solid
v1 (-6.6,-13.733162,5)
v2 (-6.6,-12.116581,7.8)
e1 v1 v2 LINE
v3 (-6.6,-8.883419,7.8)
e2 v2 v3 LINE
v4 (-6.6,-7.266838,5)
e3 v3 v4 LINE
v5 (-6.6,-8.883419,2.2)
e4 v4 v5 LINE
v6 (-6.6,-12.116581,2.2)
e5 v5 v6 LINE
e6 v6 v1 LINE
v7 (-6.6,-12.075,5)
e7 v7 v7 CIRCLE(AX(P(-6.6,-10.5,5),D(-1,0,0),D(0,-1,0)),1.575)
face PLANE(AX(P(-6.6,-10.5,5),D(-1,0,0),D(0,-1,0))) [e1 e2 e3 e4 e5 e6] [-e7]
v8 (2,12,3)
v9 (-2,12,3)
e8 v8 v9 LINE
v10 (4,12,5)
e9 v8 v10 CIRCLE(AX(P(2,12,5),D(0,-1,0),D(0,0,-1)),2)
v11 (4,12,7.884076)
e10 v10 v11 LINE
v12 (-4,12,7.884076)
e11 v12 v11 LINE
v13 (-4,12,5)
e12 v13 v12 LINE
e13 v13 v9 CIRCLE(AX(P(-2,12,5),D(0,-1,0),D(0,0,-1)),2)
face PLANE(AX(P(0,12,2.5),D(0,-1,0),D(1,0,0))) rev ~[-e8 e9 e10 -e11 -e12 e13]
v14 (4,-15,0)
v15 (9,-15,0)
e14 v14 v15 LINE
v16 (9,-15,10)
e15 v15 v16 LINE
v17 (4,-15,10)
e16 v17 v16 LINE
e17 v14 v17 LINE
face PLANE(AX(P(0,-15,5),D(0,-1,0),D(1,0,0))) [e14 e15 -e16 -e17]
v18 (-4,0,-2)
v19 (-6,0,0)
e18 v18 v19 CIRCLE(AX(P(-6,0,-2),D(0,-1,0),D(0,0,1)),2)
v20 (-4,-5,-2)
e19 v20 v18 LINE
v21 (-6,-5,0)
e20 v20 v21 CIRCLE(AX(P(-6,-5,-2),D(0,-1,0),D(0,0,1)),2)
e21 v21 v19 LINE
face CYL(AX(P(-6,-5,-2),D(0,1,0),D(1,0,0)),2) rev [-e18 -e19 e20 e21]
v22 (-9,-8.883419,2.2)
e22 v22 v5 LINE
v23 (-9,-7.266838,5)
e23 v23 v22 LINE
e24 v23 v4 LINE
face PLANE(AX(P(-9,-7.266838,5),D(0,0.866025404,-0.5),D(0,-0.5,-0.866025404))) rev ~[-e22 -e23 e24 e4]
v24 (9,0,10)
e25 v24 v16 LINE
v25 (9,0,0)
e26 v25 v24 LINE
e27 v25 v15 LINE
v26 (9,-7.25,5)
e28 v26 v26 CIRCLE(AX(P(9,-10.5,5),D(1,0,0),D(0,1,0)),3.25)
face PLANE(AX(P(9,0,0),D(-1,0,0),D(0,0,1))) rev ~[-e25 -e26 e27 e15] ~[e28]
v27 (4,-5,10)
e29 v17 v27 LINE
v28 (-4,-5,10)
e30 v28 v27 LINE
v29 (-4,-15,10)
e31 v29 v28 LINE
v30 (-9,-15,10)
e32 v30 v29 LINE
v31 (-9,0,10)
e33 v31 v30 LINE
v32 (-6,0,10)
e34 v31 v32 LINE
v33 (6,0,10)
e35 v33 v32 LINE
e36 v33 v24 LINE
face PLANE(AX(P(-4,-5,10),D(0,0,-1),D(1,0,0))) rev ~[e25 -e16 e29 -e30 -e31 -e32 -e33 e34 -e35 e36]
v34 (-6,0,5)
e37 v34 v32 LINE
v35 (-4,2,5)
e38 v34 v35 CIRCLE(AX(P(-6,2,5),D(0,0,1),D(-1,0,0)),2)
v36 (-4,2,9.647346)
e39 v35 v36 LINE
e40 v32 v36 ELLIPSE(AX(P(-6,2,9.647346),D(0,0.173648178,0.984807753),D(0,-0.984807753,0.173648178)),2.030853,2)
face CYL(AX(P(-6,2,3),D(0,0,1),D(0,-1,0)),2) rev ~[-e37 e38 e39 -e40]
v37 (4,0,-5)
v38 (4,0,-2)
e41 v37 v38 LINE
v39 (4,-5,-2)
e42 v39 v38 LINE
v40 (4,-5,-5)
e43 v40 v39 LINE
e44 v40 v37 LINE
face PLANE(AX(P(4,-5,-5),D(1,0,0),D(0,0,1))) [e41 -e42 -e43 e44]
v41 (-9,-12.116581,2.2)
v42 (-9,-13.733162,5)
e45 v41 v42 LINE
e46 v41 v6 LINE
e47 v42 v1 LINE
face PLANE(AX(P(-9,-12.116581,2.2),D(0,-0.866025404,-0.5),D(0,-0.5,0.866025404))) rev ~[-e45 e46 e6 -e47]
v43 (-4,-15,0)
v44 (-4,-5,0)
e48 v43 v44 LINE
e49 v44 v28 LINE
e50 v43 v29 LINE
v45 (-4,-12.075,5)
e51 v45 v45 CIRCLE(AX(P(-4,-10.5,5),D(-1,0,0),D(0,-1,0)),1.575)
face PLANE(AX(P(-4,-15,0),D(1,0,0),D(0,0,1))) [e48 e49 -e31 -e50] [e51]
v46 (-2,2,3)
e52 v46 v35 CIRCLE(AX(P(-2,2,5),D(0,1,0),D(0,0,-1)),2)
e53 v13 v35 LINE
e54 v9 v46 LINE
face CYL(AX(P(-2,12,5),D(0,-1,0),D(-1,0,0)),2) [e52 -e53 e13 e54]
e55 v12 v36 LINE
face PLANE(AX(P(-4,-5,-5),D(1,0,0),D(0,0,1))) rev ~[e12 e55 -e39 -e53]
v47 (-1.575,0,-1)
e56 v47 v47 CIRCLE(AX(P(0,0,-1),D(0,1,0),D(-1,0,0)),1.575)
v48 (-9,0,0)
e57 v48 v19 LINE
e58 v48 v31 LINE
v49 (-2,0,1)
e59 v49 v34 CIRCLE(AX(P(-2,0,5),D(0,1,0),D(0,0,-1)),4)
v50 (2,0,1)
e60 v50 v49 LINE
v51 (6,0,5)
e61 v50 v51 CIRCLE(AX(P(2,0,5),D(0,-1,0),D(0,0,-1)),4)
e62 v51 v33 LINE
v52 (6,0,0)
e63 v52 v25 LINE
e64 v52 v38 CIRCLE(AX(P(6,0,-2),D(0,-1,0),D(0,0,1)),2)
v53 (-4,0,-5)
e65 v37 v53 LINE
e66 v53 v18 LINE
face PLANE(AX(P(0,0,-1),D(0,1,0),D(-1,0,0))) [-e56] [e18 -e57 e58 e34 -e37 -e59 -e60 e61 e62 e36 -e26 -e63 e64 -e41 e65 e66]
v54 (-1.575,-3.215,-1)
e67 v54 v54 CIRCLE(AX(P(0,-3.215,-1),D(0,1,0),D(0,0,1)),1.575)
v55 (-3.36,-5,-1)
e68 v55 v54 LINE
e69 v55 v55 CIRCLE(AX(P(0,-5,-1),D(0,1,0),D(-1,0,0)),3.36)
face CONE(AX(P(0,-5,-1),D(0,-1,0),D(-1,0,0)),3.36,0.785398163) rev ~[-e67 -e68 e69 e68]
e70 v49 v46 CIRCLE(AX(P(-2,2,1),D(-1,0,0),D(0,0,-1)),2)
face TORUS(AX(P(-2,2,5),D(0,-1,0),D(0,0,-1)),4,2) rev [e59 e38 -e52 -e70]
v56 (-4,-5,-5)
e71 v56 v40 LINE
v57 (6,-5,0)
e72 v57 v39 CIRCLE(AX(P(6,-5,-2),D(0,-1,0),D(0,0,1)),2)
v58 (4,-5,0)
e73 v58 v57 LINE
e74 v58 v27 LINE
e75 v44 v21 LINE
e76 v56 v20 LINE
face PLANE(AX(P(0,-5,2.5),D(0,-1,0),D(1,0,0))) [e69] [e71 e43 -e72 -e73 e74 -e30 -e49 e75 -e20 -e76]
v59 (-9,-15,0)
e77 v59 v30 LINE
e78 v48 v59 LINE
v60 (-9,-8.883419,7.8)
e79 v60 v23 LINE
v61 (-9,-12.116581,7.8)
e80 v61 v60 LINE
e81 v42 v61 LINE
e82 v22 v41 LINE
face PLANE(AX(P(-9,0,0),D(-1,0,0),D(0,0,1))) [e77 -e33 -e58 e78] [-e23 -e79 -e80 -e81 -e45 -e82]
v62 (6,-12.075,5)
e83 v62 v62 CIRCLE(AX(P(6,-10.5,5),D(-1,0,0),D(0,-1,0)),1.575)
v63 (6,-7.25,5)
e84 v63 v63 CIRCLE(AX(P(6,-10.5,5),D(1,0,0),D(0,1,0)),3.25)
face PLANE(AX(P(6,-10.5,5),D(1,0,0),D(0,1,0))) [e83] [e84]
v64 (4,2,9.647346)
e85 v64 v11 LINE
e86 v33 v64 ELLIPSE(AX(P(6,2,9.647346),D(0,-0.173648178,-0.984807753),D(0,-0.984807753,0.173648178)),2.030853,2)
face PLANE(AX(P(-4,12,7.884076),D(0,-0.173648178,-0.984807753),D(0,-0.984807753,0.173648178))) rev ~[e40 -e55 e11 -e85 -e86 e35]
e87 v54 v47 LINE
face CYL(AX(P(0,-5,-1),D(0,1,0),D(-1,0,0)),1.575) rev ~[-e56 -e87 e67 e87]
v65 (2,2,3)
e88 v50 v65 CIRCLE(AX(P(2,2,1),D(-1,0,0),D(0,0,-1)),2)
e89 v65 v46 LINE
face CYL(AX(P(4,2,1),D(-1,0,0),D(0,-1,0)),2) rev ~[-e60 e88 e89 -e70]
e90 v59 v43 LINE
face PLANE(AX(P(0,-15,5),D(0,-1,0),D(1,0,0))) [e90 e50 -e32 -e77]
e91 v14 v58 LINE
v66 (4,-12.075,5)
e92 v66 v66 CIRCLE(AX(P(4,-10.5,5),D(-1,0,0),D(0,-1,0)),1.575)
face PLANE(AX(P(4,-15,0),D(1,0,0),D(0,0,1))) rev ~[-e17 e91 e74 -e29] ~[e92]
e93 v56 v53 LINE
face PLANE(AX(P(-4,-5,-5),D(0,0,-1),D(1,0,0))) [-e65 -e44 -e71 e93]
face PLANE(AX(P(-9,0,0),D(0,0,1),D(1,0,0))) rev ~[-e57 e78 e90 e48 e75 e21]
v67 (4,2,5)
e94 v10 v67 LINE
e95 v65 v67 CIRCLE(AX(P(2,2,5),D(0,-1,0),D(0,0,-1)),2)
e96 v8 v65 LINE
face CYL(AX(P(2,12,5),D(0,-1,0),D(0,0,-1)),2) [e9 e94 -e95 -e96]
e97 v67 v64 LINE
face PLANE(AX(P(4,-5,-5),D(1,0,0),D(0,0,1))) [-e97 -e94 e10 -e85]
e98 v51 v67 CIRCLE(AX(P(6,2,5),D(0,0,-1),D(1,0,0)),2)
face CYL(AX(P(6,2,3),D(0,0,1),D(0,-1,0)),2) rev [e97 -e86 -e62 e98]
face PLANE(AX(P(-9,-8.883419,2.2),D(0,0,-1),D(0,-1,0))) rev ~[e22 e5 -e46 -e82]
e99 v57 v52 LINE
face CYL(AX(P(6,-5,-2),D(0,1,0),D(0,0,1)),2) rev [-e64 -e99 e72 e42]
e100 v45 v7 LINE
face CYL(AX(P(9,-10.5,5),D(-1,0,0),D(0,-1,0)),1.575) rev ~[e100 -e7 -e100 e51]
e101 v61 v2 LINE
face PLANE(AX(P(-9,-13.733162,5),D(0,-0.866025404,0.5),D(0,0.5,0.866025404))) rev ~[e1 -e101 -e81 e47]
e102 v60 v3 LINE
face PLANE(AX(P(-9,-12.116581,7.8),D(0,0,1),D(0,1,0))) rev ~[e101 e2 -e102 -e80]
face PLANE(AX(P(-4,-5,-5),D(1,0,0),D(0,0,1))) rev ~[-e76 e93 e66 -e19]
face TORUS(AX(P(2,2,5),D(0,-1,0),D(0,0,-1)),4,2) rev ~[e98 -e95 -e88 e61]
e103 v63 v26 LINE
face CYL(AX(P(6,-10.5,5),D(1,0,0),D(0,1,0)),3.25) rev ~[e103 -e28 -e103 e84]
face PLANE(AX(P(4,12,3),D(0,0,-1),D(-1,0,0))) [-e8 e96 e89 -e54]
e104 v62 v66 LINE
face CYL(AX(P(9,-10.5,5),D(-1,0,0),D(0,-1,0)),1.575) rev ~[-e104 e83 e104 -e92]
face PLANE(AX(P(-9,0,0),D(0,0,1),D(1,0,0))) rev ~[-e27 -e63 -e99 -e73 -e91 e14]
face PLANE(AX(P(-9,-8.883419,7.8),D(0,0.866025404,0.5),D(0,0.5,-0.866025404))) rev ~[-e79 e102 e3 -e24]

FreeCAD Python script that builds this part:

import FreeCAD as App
import Part
import Sketcher

V = App.Vector
Q = App.Units.Quantity


def edges_at(feature, points):
    """Names of the edges that pass closest to the given points."""
    edges = feature.Shape.Edges
    near = lambda p: min(range(len(edges)), key=lambda i: edges[i].distToShape(Part.Vertex(*p))[0])
    return sorted({f"Edge{near(p) + 1}" for p in points})

doc = App.newDocument("Part")
body = doc.addObject("PartDesign::Body", "Body")

sketch1 = body.newObject("Sketcher::SketchObject", "Sketch")
sketch1.AttachmentSupport = (doc.getObject("XZ_Plane"), [""])
sketch1.MapMode = "FlatFace"
sketch1.addGeometry([
    Part.LineSegment(V(-9, 10, 0), V(-9, 0, 0)),
    Part.LineSegment(V(-9, 0, 0), V(9, 0, 0)),
    Part.LineSegment(V(9, 0, 0), V(9, 10, 0)),
    Part.LineSegment(V(9, 10, 0), V(-9, 10, 0)),
], False)
sketch1.addConstraint([
    Sketcher.Constraint("Coincident", 0, 2, 1, 1),
    Sketcher.Constraint("Coincident", 1, 2, 2, 1),
    Sketcher.Constraint("Coincident", 2, 2, 3, 1),
    Sketcher.Constraint("Coincident", 3, 2, 0, 1),
    Sketcher.Constraint("Vertical", 0),
    Sketcher.Constraint("Horizontal", 1),
    Sketcher.Constraint("Vertical", 2),
    Sketcher.Constraint("Horizontal", 3),
    Sketcher.Constraint("Symmetric", 0, 2, 1, 2, -1, 1),
    Sketcher.Constraint("DistanceX", 1, 1, 1, 2, 18.0),
    Sketcher.Constraint("DistanceY", 0, 2, 0, 1, 10.0),
])
pad1 = body.newObject("PartDesign::Pad", "Pad")
pad1.Profile = sketch1
pad1.Length = 15

sketch2 = body.newObject("Sketcher::SketchObject", "Sketch001")
sketch2.AttachmentSupport = (doc.getObject("XZ_Plane"), [""])
sketch2.MapMode = "FlatFace"
sketch2.AttachmentOffset = App.Placement(V(0, 0, 15), App.Rotation())
sketch2.addGeometry([
    Part.LineSegment(V(-4, 10, 0), V(-4, 0, 0)),
    Part.LineSegment(V(-4, 0, 0), V(4, 0, 0)),
    Part.LineSegment(V(4, 0, 0), V(4, 10, 0)),
    Part.LineSegment(V(4, 10, 0), V(-4, 10, 0)),
], False)
sketch2.addConstraint([
    Sketcher.Constraint("Coincident", 0, 2, 1, 1),
    Sketcher.Constraint("Coincident", 1, 2, 2, 1),
    Sketcher.Constraint("Coincident", 2, 2, 3, 1),
    Sketcher.Constraint("Coincident", 3, 2, 0, 1),
    Sketcher.Constraint("Vertical", 0),
    Sketcher.Constraint("Horizontal", 1),
    Sketcher.Constraint("Vertical", 2),
    Sketcher.Constraint("Horizontal", 3),
    Sketcher.Constraint("Symmetric", 0, 2, 1, 2, -1, 1),
    Sketcher.Constraint("DistanceX", 1, 1, 1, 2, 8.0),
    Sketcher.Constraint("DistanceY", 0, 2, 0, 1, 10.0),
])
pocket1 = body.newObject("PartDesign::Pocket", "Pocket")
pocket1.Profile = sketch2
pocket1.Length = 10

sketch3 = body.newObject("Sketcher::SketchObject", "Sketch002")
sketch3.AttachmentSupport = (doc.getObject("YZ_Plane"), [""])
sketch3.MapMode = "FlatFace"
sketch3.AttachmentOffset = App.Placement(V(0, 0, 9), App.Rotation())
sketch3.addGeometry(Part.Circle(V(-10.5, 5, 0), V(0, 0, 1), 1.6), False)
sketch3.addConstraint([
    Sketcher.Constraint("Diameter", 0, 3.15),
    Sketcher.Constraint("DistanceY", -1, 1, 0, 3, 5.0),
    Sketcher.Constraint("DistanceX", 0, 3, -1, 1, 10.5),
])
doc.recompute()
hole = body.newObject("PartDesign::Hole", "Hole")
hole.Profile = sketch3
hole.ThreadType = "None"
hole.Diameter = 3.15
hole.DepthType = "ThroughAll"
hole.HoleCutType = "Counterbore"
hole.HoleCutDiameter = 6.5
hole.HoleCutDepth = 3

sketch4 = body.newObject("Sketcher::SketchObject", "Sketch003")
sketch4.AttachmentSupport = (doc.getObject("YZ_Plane"), [""])
sketch4.MapMode = "FlatFace"
sketch4.AttachmentOffset = App.Placement(V(0, 0, -9), App.Rotation())
sketch4.addGeometry([
    Part.LineSegment(V(-12.1, 2.2, 0), V(-13.7, 5, 0)),
    Part.LineSegment(V(-13.7, 5, 0), V(-12.1, 7.8, 0)),
    Part.LineSegment(V(-12.1, 7.8, 0), V(-8.9, 7.8, 0)),
    Part.LineSegment(V(-8.9, 7.8, 0), V(-7.3, 5, 0)),
    Part.LineSegment(V(-7.3, 5, 0), V(-8.9, 2.2, 0)),
    Part.LineSegment(V(-8.9, 2.2, 0), V(-12.1, 2.2, 0)),
], False)
sketch4.addConstraint([
    Sketcher.Constraint("Coincident", 0, 2, 1, 1),
    Sketcher.Constraint("Coincident", 1, 2, 2, 1),
    Sketcher.Constraint("Coincident", 2, 2, 3, 1),
    Sketcher.Constraint("Coincident", 3, 2, 4, 1),
    Sketcher.Constraint("Coincident", 4, 2, 5, 1),
    Sketcher.Constraint("Coincident", 5, 2, 0, 1),
    Sketcher.Constraint("Horizontal", 2),
    Sketcher.Constraint("Horizontal", 5),
    Sketcher.Constraint("Parallel", 0, 3),
    Sketcher.Constraint("Parallel", 1, 4),
    Sketcher.Constraint("Horizontal", 0, 2, 3, 2),
    Sketcher.Constraint("Vertical", 2, 2, 4, 2),
    Sketcher.Constraint("Vertical", 1, 2, 5, 2),
    Sketcher.Constraint("Angle", 0, Q("120 deg")),
    Sketcher.Constraint("DistanceY", -1, 1, 0, 2, 5.0),
    Sketcher.Constraint("DistanceY", -1, 1, 1, 2, 7.8),
    Sketcher.Constraint("DistanceX", 2, 1, 2, 2, 3.233162),
    Sketcher.Constraint("DistanceX", 0, 2, -1, 1, 13.733162),
])
pocket2 = body.newObject("PartDesign::Pocket", "Pocket001")
pocket2.Profile = sketch4
pocket2.Length = 2.4
pocket2.Reversed = True

sketch5 = body.newObject("Sketcher::SketchObject", "Sketch004")
sketch5.AttachmentSupport = (doc.getObject("XZ_Plane"), [""])
sketch5.MapMode = "FlatFace"
sketch5.AttachmentOffset = App.Placement(V(0, 0, 5), App.Rotation())
sketch5.addGeometry([
    Part.LineSegment(V(-4, 10, 0), V(-4, -5, 0)),
    Part.LineSegment(V(-4, -5, 0), V(4, -5, 0)),
    Part.LineSegment(V(4, -5, 0), V(4, 10, 0)),
    Part.LineSegment(V(4, 10, 0), V(-4, 10, 0)),
], False)
sketch5.addConstraint([
    Sketcher.Constraint("Coincident", 0, 2, 1, 1),
    Sketcher.Constraint("Coincident", 1, 2, 2, 1),
    Sketcher.Constraint("Coincident", 2, 2, 3, 1),
    Sketcher.Constraint("Coincident", 3, 2, 0, 1),
    Sketcher.Constraint("Vertical", 0),
    Sketcher.Constraint("Horizontal", 1),
    Sketcher.Constraint("Vertical", 2),
    Sketcher.Constraint("Horizontal", 3),
    Sketcher.Constraint("DistanceX", 1, 1, 1, 2, 8.0),
    Sketcher.Constraint("DistanceY", 0, 2, 0, 1, 15.0),
    Sketcher.Constraint("DistanceX", 0, 2, -1, 1, 4.0),
    Sketcher.Constraint("DistanceY", 0, 2, -1, 1, 5.0),
])
pad2 = body.newObject("PartDesign::Pad", "Pad001")
pad2.Profile = sketch5
pad2.Length = 17
pad2.Reversed = True

sketch6 = body.newObject("Sketcher::SketchObject", "Sketch005")
sketch6.AttachmentSupport = (doc.getObject("XZ_Plane"), [""])
sketch6.MapMode = "FlatFace"
sketch6.AttachmentOffset = App.Placement(V(0, 0, -12), App.Rotation())
sketch6.addGeometry([
    Part.LineSegment(V(4, 3, 0), V(4, -5, 0)),
    Part.LineSegment(V(4, -5, 0), V(-4, -5, 0)),
    Part.LineSegment(V(-4, -5, 0), V(-4, 3, 0)),
    Part.LineSegment(V(-4, 3, 0), V(4, 3, 0)),
], False)
sketch6.addConstraint([
    Sketcher.Constraint("Coincident", 0, 2, 1, 1),
    Sketcher.Constraint("Coincident", 1, 2, 2, 1),
    Sketcher.Constraint("Coincident", 2, 2, 3, 1),
    Sketcher.Constraint("Coincident", 3, 2, 0, 1),
    Sketcher.Constraint("Vertical", 0),
    Sketcher.Constraint("Horizontal", 1),
    Sketcher.Constraint("Vertical", 2),
    Sketcher.Constraint("Horizontal", 3),
    Sketcher.Constraint("Equal", 3, 0),
    Sketcher.Constraint("DistanceX", 1, 2, 1, 1, 8.0),
    Sketcher.Constraint("DistanceX", -1, 1, 0, 2, 4.0),
    Sketcher.Constraint("DistanceY", 0, 2, -1, 1, 5.0),
])
pocket3 = body.newObject("PartDesign::Pocket", "Pocket002")
pocket3.Profile = sketch6
pocket3.Length = 12
pocket3.Reversed = True

sketch7 = body.newObject("Sketcher::SketchObject", "Sketch006")
sketch7.AttachmentSupport = (doc.getObject("XZ_Plane"), [""])
sketch7.MapMode = "FlatFace"
sketch7.AttachmentOffset = App.Placement(V(0, 0, 5), App.Rotation())
sketch7.addGeometry(Part.Circle(V(0, -1, 0), V(0, 0, 1), 1.6), False)
sketch7.addConstraint([
    Sketcher.Constraint("PointOnObject", 0, 3, -2),
    Sketcher.Constraint("Diameter", 0, 3.15),
    Sketcher.Constraint("DistanceY", 0, 3, -1, 1, 1.0),
])
doc.recompute()
hole2 = body.newObject("PartDesign::Hole", "Hole001")
hole2.Profile = sketch7
hole2.ThreadType = "None"
hole2.Diameter = 3.15
hole2.DepthType = "ThroughAll"
hole2.HoleCutType = "Countersink"
hole2.HoleCutDiameter = 6.72
hole2.HoleCutCountersinkAngle = 90

sketch8 = body.newObject("Sketcher::SketchObject", "Sketch007")
sketch8.AttachmentSupport = (doc.getObject("YZ_Plane"), [""])
sketch8.MapMode = "FlatFace"
sketch8.AttachmentOffset = App.Placement(V(0, 0, -4), App.Rotation())
sketch8.addGeometry([
    Part.LineSegment(V(12, 7.9, 0), V(0, 10, 0)),
    Part.LineSegment(V(0, 10, 0), V(12, 10, 0)),
    Part.LineSegment(V(12, 10, 0), V(12, 7.9, 0)),
], False)
sketch8.addConstraint([
    Sketcher.Constraint("Coincident", 0, 2, 1, 1),
    Sketcher.Constraint("Coincident", 1, 2, 2, 1),
    Sketcher.Constraint("Coincident", 2, 2, 0, 1),
    Sketcher.Constraint("Horizontal", 1),
    Sketcher.Constraint("Vertical", 2),
    Sketcher.Constraint("PointOnObject", 0, 2, -2),
    Sketcher.Constraint("DistanceX", 1, 1, 1, 2, 12.0),
    Sketcher.Constraint("Angle", 0, Q("170 deg")),
    Sketcher.Constraint("DistanceY", -1, 1, 0, 2, 10.0),
])
pocket4 = body.newObject("PartDesign::Pocket", "Pocket003")
pocket4.Profile = sketch8
pocket4.Length = 25
pocket4.Reversed = True
doc.recompute()

fillet = body.newObject("PartDesign::Fillet", "Fillet")
fillet.Base = (pocket4, edges_at(pocket4, [(-4, -2.5, 0)]))
fillet.Radius = 2
doc.recompute()

fillet2 = body.newObject("PartDesign::Fillet", "Fillet001")
fillet2.Base = (fillet, edges_at(fillet, [
    (0, 0, 3),
    (-4, 0, 6.5),
    (4, 0, 6.5),
    (-4, 6, 3),
    (4, 6, 3),
]))
fillet2.Radius = 2
doc.recompute()

fillet3 = body.newObject("PartDesign::Fillet", "Fillet002")
fillet3.Base = (fillet2, edges_at(fillet2, [(4, -2.5, 0)]))
fillet3.Radius = 2

doc.recompute()
